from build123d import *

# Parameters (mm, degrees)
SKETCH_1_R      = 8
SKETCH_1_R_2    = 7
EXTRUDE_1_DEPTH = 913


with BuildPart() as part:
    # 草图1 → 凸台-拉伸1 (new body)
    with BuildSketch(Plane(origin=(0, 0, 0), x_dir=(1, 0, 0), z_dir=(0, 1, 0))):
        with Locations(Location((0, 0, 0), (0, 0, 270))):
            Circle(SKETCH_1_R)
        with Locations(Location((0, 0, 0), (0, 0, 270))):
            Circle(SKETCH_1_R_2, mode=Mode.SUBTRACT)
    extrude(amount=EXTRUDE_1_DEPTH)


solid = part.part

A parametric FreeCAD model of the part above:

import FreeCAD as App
import Part
import Sketcher
from FreeCAD import Vector
Q = App.Units.Quantity

doc = App.newDocument("Part")
body = doc.addObject("PartDesign::Body", "Body")

sketch1 = body.newObject("Sketcher::SketchObject", "Sketch")
sketch1.AttachmentSupport = (doc.getObject("XZ_Plane"), [""])
sketch1.MapMode = "FlatFace"
sketch1.addGeometry(Part.Circle(Vector(0, 0, 0), Vector(0, 0, 1), 8), False)
sketch1.addGeometry(Part.Circle(Vector(0, 0, 0), Vector(0, 0, 1), 7), False)
sketch1.addConstraint(Sketcher.Constraint("Coincident", 0, 3, -1, 1))
sketch1.addConstraint(Sketcher.Constraint("Coincident", 1, 3, -1, 1))
sketch1.addConstraint(Sketcher.Constraint("Diameter", 0, Q("16 mm")))
sketch1.addConstraint(Sketcher.Constraint("Diameter", 1, Q("14 mm")))
pad1 = body.newObject("PartDesign::Pad", "Pad")
pad1.Profile = sketch1
pad1.Length = 913
pad1.Reversed = True

doc.recompute()
